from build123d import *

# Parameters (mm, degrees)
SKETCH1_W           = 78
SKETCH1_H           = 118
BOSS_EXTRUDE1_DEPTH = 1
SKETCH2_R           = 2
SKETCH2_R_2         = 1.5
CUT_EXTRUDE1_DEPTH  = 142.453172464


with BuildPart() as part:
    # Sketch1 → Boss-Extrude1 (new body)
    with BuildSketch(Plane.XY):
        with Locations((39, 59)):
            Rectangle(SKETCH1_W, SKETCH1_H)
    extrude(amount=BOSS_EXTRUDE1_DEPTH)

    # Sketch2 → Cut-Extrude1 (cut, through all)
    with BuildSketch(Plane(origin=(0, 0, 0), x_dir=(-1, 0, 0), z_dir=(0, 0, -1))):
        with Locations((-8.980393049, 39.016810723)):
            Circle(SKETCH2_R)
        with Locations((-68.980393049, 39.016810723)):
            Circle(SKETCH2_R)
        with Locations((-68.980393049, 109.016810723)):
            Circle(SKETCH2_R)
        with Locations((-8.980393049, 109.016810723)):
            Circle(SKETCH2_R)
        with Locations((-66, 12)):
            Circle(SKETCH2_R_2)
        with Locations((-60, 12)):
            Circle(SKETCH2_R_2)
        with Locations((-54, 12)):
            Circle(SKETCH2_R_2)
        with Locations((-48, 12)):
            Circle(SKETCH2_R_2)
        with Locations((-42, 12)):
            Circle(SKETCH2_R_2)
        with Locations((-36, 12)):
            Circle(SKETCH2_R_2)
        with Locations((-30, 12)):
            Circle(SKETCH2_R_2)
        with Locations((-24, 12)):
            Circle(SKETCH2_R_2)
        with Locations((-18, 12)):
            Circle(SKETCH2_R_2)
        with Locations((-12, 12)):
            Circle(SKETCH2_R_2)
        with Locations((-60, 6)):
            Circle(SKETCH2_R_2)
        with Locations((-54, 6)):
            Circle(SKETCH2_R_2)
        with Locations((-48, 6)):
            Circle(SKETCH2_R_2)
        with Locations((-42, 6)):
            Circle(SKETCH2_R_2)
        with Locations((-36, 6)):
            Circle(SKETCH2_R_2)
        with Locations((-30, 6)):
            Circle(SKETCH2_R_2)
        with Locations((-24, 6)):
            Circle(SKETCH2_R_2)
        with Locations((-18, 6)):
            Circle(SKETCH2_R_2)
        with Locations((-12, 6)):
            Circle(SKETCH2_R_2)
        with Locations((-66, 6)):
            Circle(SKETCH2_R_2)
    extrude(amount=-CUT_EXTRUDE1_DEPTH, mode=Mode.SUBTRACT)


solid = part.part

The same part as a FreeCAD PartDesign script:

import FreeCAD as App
import Part
import Sketcher

V = App.Vector


def add_polygon(sketch, points):
    """Adds a closed chain of lines whose ends are joined by coincident constraints."""
    first, n = sketch.GeometryCount, len(points)
    for a, b in zip(points, points[1:] + points[:1]):
        sketch.addGeometry(Part.LineSegment(App.Vector(*a, 0), App.Vector(*b, 0)), False)
    for i in range(n):
        sketch.addConstraint(Sketcher.Constraint("Coincident", first + i, 2, first + (i + 1) % n, 1))

doc = App.newDocument("Part")
body = doc.addObject("PartDesign::Body", "Body")

sketch1 = doc.addObject("Sketcher::SketchObject", "Sketch")
body.addObject(sketch1)
sketch1.AttachmentSupport = (doc.XY_Plane, [""])
sketch1.MapMode = "FlatFace"
add_polygon(sketch1, [(0, 118), (0, 0), (78, 0), (78, 118)])
sketch1.addConstraint([
    Sketcher.Constraint("Vertical", 0),
    Sketcher.Constraint("Horizontal", 1),
    Sketcher.Constraint("Vertical", 2),
    Sketcher.Constraint("Horizontal", 3),
    Sketcher.Constraint("Coincident", 0, 2, -1, 1),
    Sketcher.Constraint("DistanceX", 1, 1, 1, 2, 78.0),
    Sketcher.Constraint("DistanceY", 0, 2, 0, 1, 118.0),
])
pad1 = doc.addObject("PartDesign::Pad", "Pad")
body.addObject(pad1)
pad1.Profile = sketch1
pad1.Length = 1

sketch2 = doc.addObject("Sketcher::SketchObject", "Sketch001")
body.addObject(sketch2)
sketch2.AttachmentSupport = (doc.XY_Plane, [""])
sketch2.MapMode = "FlatFace"
sketch2.addGeometry([
    Part.Circle(V(9, 39, 0), V(0, 0, 1), 2),
    Part.Circle(V(69, 39, 0), V(0, 0, 1), 2),
    Part.Circle(V(69, 109, 0), V(0, 0, 1), 2),
    Part.Circle(V(9, 109, 0), V(0, 0, 1), 2),
    Part.Circle(V(66, 12, 0), V(0, 0, 1), 1.5),
    Part.Circle(V(60, 12, 0), V(0, 0, 1), 1.5),
    Part.Circle(V(54, 12, 0), V(0, 0, 1), 1.5),
    Part.Circle(V(48, 12, 0), V(0, 0, 1), 1.5),
    Part.Circle(V(42, 12, 0), V(0, 0, 1), 1.5),
    Part.Circle(V(36, 12, 0), V(0, 0, 1), 1.5),
    Part.Circle(V(30, 12, 0), V(0, 0, 1), 1.5),
    Part.Circle(V(24, 12, 0), V(0, 0, 1), 1.5),
    Part.Circle(V(18, 12, 0), V(0, 0, 1), 1.5),
    Part.Circle(V(12, 12, 0), V(0, 0, 1), 1.5),
    Part.Circle(V(60, 6, 0), V(0, 0, 1), 1.5),
    Part.Circle(V(54, 6, 0), V(0, 0, 1), 1.5),
    Part.Circle(V(48, 6, 0), V(0, 0, 1), 1.5),
    Part.Circle(V(42, 6, 0), V(0, 0, 1), 1.5),
    Part.Circle(V(36, 6, 0), V(0, 0, 1), 1.5),
    Part.Circle(V(30, 6, 0), V(0, 0, 1), 1.5),
    Part.Circle(V(24, 6, 0), V(0, 0, 1), 1.5),
    Part.Circle(V(18, 6, 0), V(0, 0, 1), 1.5),
    Part.Circle(V(12, 6, 0), V(0, 0, 1), 1.5),
    Part.Circle(V(66, 6, 0), V(0, 0, 1), 1.5),
], False)
sketch2.addConstraint([
    Sketcher.Constraint("Equal", 0, 1),
    Sketcher.Constraint("Equal", 1, 2),
    Sketcher.Constraint("Equal", 2, 3),
    Sketcher.Constraint("Equal", 4, 5),
    Sketcher.Constraint("Equal", 5, 6),
    Sketcher.Constraint("Equal", 6, 7),
    Sketcher.Constraint("Equal", 7, 8),
    Sketcher.Constraint("Equal", 8, 9),
    Sketcher.Constraint("Equal", 9, 10),
    Sketcher.Constraint("Equal", 10, 11),
    Sketcher.Constraint("Equal", 11, 12),
    Sketcher.Constraint("Equal", 12, 13),
    Sketcher.Constraint("Equal", 13, 14),
    Sketcher.Constraint("Equal", 14, 15),
    Sketcher.Constraint("Equal", 15, 16),
    Sketcher.Constraint("Equal", 16, 17),
    Sketcher.Constraint("Equal", 17, 18),
    Sketcher.Constraint("Equal", 18, 19),
    Sketcher.Constraint("Equal", 19, 20),
    Sketcher.Constraint("Equal", 20, 21),
    Sketcher.Constraint("Equal", 21, 22),
    Sketcher.Constraint("Equal", 22, 23),
    Sketcher.Constraint("Horizontal", 0, 3, 1, 3),
    Sketcher.Constraint("Horizontal", 2, 3, 3, 3),
    Sketcher.Constraint("Horizontal", 4, 3, 5, 3),
    Sketcher.Constraint("Horizontal", 5, 3, 6, 3),
    Sketcher.Constraint("Horizontal", 6, 3, 7, 3),
    Sketcher.Constraint("Horizontal", 7, 3, 8, 3),
    Sketcher.Constraint("Horizontal", 8, 3, 9, 3),
    Sketcher.Constraint("Horizontal", 9, 3, 10, 3),
    Sketcher.Constraint("Horizontal", 10, 3, 11, 3),
    Sketcher.Constraint("Horizontal", 11, 3, 12, 3),
    Sketcher.Constraint("Horizontal", 12, 3, 13, 3),
    Sketcher.Constraint("Horizontal", 14, 3, 15, 3),
    Sketcher.Constraint("Horizontal", 15, 3, 16, 3),
    Sketcher.Constraint("Horizontal", 16, 3, 17, 3),
    Sketcher.Constraint("Horizontal", 17, 3, 18, 3),
    Sketcher.Constraint("Horizontal", 18, 3, 19, 3),
    Sketcher.Constraint("Horizontal", 19, 3, 20, 3),
    Sketcher.Constraint("Horizontal", 20, 3, 21, 3),
    Sketcher.Constraint("Horizontal", 21, 3, 22, 3),
    Sketcher.Constraint("Horizontal", 22, 3, 23, 3),
    Sketcher.Constraint("Vertical", 1, 3, 2, 3),
    Sketcher.Constraint("Vertical", 0, 3, 3, 3),
    Sketcher.Constraint("Vertical", 5, 3, 14, 3),
    Sketcher.Constraint("Vertical", 6, 3, 15, 3),
    Sketcher.Constraint("Vertical", 7, 3, 16, 3),
    Sketcher.Constraint("Vertical", 8, 3, 17, 3),
    Sketcher.Constraint("Vertical", 9, 3, 18, 3),
    Sketcher.Constraint("Vertical", 10, 3, 19, 3),
    Sketcher.Constraint("Vertical", 11, 3, 20, 3),
    Sketcher.Constraint("Vertical", 12, 3, 21, 3),
    Sketcher.Constraint("Vertical", 13, 3, 22, 3),
    Sketcher.Constraint("Vertical", 4, 3, 23, 3),
    Sketcher.Constraint("Diameter", 0, 4.0),
    Sketcher.Constraint("Diameter", 4, 3.0),
    Sketcher.Constraint("DistanceX", -1, 1, 4, 3, 66.0),
    Sketcher.Constraint("DistanceY", -1, 1, 4, 3, 12.0),
    Sketcher.Constraint("DistanceX", -1, 1, 5, 3, 60.0),
    Sketcher.Constraint("DistanceX", -1, 1, 6, 3, 54.0),
    Sketcher.Constraint("DistanceX", -1, 1, 7, 3, 48.0),
    Sketcher.Constraint("DistanceX", -1, 1, 8, 3, 42.0),
    Sketcher.Constraint("DistanceX", -1, 1, 9, 3, 36.0),
    Sketcher.Constraint("DistanceX", -1, 1, 10, 3, 30.0),
    Sketcher.Constraint("DistanceX", -1, 1, 11, 3, 24.0),
    Sketcher.Constraint("DistanceX", -1, 1, 12, 3, 18.0),
    Sketcher.Constraint("DistanceX", -1, 1, 13, 3, 12.0),
    Sketcher.Constraint("DistanceY", -1, 1, 14, 3, 6.0),
    Sketcher.Constraint("DistanceX", 0, 3, 1, 3, 60.0),
    Sketcher.Constraint("DistanceY", 1, 3, 2, 3, 70.0),
    Sketcher.Constraint("DistanceY", -1, 1, 0, 3, 39.016811),
    Sketcher.Constraint("DistanceX", -1, 1, 0, 3, 8.980393),
])
pocket1 = doc.addObject("PartDesign::Pocket", "Pocket")
body.addObject(pocket1)
pocket1.Profile = sketch2
pocket1.Type = "ThroughAll"
pocket1.Reversed = True

doc.recompute()
